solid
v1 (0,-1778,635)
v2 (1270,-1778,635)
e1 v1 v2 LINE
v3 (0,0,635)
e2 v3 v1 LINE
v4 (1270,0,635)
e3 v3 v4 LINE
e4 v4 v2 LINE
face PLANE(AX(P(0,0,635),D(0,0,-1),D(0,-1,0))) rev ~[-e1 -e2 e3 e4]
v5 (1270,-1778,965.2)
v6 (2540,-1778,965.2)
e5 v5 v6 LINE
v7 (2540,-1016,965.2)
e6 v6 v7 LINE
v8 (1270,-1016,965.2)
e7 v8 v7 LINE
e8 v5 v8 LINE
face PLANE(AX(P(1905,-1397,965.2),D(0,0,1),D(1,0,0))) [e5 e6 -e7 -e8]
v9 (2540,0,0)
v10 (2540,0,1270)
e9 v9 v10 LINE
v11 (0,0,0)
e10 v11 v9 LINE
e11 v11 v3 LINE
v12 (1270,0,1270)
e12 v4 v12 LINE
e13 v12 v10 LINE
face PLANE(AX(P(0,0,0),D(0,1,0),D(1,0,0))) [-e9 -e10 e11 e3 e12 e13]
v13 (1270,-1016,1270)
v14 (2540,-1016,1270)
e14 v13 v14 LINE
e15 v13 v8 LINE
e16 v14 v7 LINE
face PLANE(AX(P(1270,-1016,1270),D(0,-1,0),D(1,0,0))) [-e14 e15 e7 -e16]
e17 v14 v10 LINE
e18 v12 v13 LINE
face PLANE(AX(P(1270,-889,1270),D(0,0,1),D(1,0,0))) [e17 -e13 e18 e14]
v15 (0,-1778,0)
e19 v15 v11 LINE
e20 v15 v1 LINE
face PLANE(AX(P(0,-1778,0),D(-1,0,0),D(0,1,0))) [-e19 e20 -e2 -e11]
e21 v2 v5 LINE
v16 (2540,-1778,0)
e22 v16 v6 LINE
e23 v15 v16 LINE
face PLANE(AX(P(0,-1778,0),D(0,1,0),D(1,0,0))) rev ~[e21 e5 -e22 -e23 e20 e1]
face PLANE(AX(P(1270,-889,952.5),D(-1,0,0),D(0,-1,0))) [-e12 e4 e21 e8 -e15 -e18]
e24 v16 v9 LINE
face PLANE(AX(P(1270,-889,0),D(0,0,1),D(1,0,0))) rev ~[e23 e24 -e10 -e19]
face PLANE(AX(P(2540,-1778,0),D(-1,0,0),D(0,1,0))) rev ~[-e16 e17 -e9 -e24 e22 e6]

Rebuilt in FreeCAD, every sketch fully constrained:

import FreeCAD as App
import Part
import Sketcher
Q = App.Units.Quantity

doc = App.newDocument("Part")
body = doc.addObject("PartDesign::Body", "Body")

sketch1 = doc.addObject("Sketcher::SketchObject", "Sketch")
body.addObject(sketch1)
sketch1.AttachmentSupport = (doc.XY_Plane, [""])
sketch1.MapMode = "FlatFace"
sketch1.addGeometry([
    Part.LineSegment(App.Vector(0, 0, 0), App.Vector(0, -1778, 0)),
    Part.LineSegment(App.Vector(0, -1778, 0), App.Vector(2540, -1778, 0)),
    Part.LineSegment(App.Vector(2540, -1778, 0), App.Vector(2540, 0, 0)),
    Part.LineSegment(App.Vector(2540, 0, 0), App.Vector(0, 0, 0)),
], False)
sketch1.addConstraint([
    Sketcher.Constraint("Coincident", 0, 2, 1, 1),
    Sketcher.Constraint("Coincident", 1, 2, 2, 1),
    Sketcher.Constraint("Coincident", 2, 2, 3, 1),
    Sketcher.Constraint("Coincident", 3, 2, 0, 1),
    Sketcher.Constraint("Vertical", 0),
    Sketcher.Constraint("Horizontal", 1),
    Sketcher.Constraint("Vertical", 2),
    Sketcher.Constraint("Horizontal", 3),
    Sketcher.Constraint("Coincident", 3, 2, -1, 1),
    Sketcher.Constraint("DistanceX", 1, 1, 1, 2, Q("100 in")),
    Sketcher.Constraint("DistanceY", 0, 2, 0, 1, Q("70 in")),
])
pad1 = doc.addObject("PartDesign::Pad", "Pad")
body.addObject(pad1)
pad1.Profile = sketch1
pad1.Length = Q("50 in")

sketch2 = doc.addObject("Sketcher::SketchObject", "Sketch001")
body.addObject(sketch2)
sketch2.AttachmentSupport = (doc.YZ_Plane, [""])
sketch2.MapMode = "FlatFace"
sketch2.addGeometry([
    Part.LineSegment(App.Vector(0, 1270, 0), App.Vector(0, 635, 0)),
    Part.LineSegment(App.Vector(0, 635, 0), App.Vector(-1778, 635, 0)),
    Part.LineSegment(App.Vector(-1778, 635, 0), App.Vector(-1778, 1270, 0)),
    Part.LineSegment(App.Vector(-1778, 1270, 0), App.Vector(0, 1270, 0)),
], False)
sketch2.addConstraint([
    Sketcher.Constraint("Coincident", 0, 2, 1, 1),
    Sketcher.Constraint("Coincident", 1, 2, 2, 1),
    Sketcher.Constraint("Coincident", 2, 2, 3, 1),
    Sketcher.Constraint("Coincident", 3, 2, 0, 1),
    Sketcher.Constraint("Vertical", 0),
    Sketcher.Constraint("Horizontal", 1),
    Sketcher.Constraint("Vertical", 2),
    Sketcher.Constraint("Horizontal", 3),
    Sketcher.Constraint("PointOnObject", 0, 2, -2),
    Sketcher.Constraint("DistanceX", 1, 2, 1, 1, Q("70 in")),
    Sketcher.Constraint("DistanceY", 0, 2, 0, 1, Q("25 in")),
    Sketcher.Constraint("DistanceY", -1, 1, 0, 2, Q("25 in")),
])
pocket1 = doc.addObject("PartDesign::Pocket", "Pocket")
body.addObject(pocket1)
pocket1.Profile = sketch2
pocket1.Length = Q("50 in")
pocket1.Reversed = True

sketch3 = doc.addObject("Sketcher::SketchObject", "Sketch002")
body.addObject(sketch3)
sketch3.AttachmentSupport = (doc.XY_Plane, [""])
sketch3.MapMode = "FlatFace"
sketch3.AttachmentOffset = App.Placement(App.Vector(0, 0, 50 * 25.4), App.Rotation())
sketch3.addGeometry([
    Part.LineSegment(App.Vector(1270, -1016, 0), App.Vector(1270, -1778, 0)),
    Part.LineSegment(App.Vector(1270, -1778, 0), App.Vector(2540, -1778, 0)),
    Part.LineSegment(App.Vector(2540, -1778, 0), App.Vector(2540, -1016, 0)),
    Part.LineSegment(App.Vector(2540, -1016, 0), App.Vector(1270, -1016, 0)),
], False)
sketch3.addConstraint([
    Sketcher.Constraint("Coincident", 0, 2, 1, 1),
    Sketcher.Constraint("Coincident", 1, 2, 2, 1),
    Sketcher.Constraint("Coincident", 2, 2, 3, 1),
    Sketcher.Constraint("Coincident", 3, 2, 0, 1),
    Sketcher.Constraint("Vertical", 0),
    Sketcher.Constraint("Horizontal", 1),
    Sketcher.Constraint("Vertical", 2),
    Sketcher.Constraint("Horizontal", 3),
    Sketcher.Constraint("DistanceX", 1, 1, 1, 2, Q("50 in")),
    Sketcher.Constraint("DistanceY", 0, 2, 0, 1, Q("30 in")),
    Sketcher.Constraint("DistanceX", -1, 1, 0, 2, Q("50 in")),
    Sketcher.Constraint("DistanceY", 0, 2, -1, 1, Q("70 in")),
])
pocket2 = doc.addObject("PartDesign::Pocket", "Pocket001")
body.addObject(pocket2)
pocket2.Profile = sketch3
pocket2.Length = Q("12 in")

doc.recompute()
